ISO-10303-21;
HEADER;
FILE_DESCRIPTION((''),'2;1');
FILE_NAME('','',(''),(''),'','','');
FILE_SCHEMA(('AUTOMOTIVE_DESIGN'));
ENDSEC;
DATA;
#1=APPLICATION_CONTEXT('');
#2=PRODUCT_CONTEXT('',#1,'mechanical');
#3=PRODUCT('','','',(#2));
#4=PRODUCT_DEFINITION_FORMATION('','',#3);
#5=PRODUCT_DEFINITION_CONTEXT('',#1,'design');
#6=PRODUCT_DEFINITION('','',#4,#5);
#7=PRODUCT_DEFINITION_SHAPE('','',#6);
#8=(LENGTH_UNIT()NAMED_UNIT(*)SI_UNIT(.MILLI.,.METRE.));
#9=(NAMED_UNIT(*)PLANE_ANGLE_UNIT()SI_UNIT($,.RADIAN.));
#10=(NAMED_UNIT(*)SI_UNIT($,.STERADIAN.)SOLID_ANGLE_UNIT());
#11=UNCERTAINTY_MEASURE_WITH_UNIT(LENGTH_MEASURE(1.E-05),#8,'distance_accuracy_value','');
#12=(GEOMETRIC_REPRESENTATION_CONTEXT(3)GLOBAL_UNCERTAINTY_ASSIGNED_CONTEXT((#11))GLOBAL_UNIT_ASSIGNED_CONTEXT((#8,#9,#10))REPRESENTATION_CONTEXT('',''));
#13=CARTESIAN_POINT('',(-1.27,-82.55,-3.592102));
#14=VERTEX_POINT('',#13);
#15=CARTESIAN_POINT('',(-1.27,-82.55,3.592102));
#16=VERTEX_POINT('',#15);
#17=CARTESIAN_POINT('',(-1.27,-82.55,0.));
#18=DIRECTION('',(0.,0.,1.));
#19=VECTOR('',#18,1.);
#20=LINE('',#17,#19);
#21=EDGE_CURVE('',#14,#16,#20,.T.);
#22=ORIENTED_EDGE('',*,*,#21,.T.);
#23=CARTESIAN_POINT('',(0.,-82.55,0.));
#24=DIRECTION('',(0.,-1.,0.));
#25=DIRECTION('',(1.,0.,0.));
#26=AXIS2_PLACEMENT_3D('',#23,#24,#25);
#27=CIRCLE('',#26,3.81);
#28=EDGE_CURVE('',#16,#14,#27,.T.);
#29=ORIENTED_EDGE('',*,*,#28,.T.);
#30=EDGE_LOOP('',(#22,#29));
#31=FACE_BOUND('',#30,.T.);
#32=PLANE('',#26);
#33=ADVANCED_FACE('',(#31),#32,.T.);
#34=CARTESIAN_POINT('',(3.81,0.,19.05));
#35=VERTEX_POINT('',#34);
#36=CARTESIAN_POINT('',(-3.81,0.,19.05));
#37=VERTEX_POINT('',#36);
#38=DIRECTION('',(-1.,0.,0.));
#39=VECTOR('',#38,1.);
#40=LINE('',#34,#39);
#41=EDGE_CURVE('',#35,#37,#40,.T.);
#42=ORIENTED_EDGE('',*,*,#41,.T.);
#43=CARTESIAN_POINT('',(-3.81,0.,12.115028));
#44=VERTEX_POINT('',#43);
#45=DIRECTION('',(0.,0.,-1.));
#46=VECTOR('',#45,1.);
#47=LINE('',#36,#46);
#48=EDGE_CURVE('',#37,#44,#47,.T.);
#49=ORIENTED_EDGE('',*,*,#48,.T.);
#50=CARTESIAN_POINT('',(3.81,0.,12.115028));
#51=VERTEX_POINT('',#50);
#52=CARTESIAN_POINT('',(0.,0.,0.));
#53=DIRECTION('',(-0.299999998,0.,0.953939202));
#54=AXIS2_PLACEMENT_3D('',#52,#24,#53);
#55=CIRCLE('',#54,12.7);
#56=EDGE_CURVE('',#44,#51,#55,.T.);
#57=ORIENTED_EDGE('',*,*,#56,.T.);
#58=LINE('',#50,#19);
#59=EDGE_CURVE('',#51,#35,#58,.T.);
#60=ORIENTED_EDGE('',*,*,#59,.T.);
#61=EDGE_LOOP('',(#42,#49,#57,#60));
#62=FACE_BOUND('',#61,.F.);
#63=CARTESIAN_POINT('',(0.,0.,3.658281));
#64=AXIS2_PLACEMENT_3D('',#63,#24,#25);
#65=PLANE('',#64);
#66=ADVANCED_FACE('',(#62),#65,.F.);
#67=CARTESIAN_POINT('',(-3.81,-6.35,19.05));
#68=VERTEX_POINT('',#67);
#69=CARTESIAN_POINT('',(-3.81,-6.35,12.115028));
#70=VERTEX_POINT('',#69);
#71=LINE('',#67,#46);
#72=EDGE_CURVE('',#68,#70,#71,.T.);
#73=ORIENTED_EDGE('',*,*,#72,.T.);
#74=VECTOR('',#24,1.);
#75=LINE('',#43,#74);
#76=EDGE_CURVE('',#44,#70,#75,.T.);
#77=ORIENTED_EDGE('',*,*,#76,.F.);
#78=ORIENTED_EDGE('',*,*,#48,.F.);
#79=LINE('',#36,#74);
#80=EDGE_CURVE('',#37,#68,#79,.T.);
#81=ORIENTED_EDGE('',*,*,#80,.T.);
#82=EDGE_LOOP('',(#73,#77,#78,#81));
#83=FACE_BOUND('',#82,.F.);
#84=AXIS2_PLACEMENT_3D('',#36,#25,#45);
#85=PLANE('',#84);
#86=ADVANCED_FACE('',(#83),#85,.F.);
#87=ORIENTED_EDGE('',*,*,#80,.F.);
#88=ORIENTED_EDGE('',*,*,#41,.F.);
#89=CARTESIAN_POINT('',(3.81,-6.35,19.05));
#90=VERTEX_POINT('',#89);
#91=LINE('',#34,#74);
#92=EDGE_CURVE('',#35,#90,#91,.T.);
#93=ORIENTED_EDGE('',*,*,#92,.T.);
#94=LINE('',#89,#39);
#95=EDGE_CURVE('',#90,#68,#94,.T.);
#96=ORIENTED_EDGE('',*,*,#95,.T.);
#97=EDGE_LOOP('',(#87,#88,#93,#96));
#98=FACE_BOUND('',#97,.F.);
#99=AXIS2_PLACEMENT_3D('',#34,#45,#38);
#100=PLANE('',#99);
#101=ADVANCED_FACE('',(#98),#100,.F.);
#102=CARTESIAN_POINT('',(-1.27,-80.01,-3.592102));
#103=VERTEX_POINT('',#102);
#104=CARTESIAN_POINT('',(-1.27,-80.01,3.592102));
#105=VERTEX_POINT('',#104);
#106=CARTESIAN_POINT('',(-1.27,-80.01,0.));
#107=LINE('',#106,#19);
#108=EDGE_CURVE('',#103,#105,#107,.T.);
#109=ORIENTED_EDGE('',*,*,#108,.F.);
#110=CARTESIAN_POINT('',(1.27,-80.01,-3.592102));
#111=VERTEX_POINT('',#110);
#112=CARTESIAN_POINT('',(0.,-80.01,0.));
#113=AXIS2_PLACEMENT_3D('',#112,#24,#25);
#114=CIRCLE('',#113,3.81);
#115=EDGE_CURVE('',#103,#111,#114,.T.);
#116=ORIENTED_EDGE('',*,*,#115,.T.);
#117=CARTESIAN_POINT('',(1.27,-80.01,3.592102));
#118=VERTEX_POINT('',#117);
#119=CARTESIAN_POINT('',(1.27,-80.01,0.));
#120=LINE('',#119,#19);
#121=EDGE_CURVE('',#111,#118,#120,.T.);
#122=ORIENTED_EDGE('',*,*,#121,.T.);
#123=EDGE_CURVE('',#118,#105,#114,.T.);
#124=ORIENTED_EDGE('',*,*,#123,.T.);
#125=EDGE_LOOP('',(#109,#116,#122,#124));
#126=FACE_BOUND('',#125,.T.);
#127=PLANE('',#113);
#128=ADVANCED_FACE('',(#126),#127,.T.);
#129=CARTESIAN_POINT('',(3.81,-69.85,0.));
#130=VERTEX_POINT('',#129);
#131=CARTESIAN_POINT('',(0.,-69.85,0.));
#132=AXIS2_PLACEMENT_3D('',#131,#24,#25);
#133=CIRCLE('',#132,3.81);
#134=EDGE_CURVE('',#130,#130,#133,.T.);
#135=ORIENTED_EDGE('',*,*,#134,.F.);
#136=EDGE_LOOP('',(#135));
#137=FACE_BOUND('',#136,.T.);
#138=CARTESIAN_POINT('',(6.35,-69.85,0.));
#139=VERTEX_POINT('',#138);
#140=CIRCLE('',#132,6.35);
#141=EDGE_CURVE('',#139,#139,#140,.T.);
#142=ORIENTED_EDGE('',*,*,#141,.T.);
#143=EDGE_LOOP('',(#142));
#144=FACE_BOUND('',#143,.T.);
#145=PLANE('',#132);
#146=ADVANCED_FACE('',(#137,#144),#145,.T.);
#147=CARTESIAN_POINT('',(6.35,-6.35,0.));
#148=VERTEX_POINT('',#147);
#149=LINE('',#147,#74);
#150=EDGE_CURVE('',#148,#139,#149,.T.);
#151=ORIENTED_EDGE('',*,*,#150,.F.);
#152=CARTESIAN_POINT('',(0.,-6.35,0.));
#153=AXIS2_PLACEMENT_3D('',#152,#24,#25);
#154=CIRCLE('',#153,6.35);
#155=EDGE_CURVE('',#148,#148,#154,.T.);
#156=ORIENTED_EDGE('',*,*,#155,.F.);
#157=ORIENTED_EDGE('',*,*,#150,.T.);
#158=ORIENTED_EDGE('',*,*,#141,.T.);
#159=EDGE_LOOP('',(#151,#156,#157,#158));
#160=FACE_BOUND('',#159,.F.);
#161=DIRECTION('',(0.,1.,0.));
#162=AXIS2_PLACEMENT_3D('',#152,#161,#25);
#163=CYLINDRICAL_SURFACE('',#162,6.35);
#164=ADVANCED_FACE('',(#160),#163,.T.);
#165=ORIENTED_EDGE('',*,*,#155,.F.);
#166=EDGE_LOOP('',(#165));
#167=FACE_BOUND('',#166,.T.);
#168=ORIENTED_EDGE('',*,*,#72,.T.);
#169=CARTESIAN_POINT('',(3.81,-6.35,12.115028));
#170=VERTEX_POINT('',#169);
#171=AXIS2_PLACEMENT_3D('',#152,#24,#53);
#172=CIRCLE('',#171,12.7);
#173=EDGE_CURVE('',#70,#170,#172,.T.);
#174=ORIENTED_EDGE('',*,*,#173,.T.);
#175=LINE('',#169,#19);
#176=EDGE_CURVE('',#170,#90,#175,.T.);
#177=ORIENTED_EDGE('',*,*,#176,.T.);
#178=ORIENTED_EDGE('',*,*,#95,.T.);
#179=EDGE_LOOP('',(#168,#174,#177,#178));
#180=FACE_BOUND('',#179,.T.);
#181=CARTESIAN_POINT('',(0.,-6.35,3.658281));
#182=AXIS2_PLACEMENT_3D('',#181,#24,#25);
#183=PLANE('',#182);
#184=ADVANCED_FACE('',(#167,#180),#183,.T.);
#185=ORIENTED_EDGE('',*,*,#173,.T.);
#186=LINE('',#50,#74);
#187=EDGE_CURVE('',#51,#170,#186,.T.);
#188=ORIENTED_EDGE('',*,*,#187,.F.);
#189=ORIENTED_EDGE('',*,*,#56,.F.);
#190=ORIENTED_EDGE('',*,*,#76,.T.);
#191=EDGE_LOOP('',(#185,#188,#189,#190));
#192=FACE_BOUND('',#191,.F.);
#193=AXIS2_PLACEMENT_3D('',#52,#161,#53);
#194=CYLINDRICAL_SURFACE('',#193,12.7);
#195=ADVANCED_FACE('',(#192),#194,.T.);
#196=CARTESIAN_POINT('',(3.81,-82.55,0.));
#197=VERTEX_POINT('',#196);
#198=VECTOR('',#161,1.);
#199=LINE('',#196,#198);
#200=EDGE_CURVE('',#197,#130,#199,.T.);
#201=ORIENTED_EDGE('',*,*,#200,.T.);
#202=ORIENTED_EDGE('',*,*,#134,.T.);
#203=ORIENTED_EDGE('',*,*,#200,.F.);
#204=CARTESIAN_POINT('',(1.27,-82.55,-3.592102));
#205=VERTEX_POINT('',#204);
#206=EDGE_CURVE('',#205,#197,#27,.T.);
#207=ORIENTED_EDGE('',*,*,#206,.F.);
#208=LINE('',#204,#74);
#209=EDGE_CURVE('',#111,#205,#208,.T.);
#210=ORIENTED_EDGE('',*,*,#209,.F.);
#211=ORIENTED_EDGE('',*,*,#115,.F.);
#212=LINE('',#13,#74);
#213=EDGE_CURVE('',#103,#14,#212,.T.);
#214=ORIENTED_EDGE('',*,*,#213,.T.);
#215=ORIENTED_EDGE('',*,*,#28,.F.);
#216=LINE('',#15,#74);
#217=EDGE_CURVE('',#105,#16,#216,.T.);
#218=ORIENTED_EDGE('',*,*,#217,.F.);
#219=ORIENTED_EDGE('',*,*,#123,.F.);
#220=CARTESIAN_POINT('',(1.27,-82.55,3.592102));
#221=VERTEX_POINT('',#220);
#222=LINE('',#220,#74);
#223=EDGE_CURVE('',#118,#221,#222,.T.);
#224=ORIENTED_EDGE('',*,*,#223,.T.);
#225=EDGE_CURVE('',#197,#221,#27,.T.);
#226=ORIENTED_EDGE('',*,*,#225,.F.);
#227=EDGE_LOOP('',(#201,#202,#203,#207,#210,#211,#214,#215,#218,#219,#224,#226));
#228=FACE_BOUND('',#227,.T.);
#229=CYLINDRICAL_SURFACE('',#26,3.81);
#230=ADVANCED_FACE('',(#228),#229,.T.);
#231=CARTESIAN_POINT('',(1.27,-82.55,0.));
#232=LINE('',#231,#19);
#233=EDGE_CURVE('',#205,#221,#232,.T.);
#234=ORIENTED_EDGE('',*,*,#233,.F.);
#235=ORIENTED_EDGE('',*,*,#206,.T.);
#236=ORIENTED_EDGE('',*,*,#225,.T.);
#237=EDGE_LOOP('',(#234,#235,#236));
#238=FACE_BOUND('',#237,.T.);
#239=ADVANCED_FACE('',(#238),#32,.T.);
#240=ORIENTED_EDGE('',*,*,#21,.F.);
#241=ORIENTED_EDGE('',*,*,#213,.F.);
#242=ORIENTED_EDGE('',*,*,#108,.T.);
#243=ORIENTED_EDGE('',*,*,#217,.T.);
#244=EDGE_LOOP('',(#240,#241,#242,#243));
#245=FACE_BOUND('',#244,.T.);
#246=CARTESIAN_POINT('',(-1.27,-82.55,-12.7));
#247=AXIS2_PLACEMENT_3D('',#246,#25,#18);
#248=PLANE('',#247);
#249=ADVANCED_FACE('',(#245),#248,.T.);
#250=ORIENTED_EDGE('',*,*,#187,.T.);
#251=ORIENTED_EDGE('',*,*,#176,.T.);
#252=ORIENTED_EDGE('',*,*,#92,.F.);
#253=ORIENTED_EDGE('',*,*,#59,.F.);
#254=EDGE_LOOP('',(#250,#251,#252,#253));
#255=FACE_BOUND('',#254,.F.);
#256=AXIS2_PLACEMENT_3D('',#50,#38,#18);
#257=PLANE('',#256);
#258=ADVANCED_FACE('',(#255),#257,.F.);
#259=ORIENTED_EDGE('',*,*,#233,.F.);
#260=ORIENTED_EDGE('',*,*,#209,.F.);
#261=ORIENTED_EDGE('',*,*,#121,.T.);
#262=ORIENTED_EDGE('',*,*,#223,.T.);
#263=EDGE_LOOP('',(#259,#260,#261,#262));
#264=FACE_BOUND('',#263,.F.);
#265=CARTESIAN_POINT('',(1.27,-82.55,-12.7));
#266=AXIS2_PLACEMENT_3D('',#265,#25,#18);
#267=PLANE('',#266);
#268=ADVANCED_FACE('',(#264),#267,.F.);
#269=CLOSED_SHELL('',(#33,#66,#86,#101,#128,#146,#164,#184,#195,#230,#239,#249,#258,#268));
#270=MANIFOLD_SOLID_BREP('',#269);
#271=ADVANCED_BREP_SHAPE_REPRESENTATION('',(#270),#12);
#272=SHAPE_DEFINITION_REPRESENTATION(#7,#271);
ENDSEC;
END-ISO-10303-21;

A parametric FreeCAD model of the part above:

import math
import FreeCAD as App
import Part
import Sketcher
from FreeCAD import Vector
Q = App.Units.Quantity

doc = App.newDocument("Part")
body = doc.addObject("PartDesign::Body", "Body")

# Sketch on XZ plane
sketch1 = body.newObject("Sketcher::SketchObject", "Sketch")
sketch1.AttachmentSupport = (doc.getObject("XZ_Plane"), [""])
sketch1.MapMode = "FlatFace"
sketch1.addGeometry([
    Part.LineSegment(Vector(-4, 19, 0), Vector(-4, 12, 0)),
    Part.ArcOfCircle(Part.Circle(Vector(0, 0, 0), Vector(0, 0, 1), 13), math.radians(107), math.radians(433)),
    Part.LineSegment(Vector(4, 12, 0), Vector(4, 19, 0)),
    Part.LineSegment(Vector(4, 19, 0), Vector(-4, 19, 0)),
], False)
sketch1.addConstraint([
    Sketcher.Constraint("Coincident", 0, 2, 1, 1),
    Sketcher.Constraint("Coincident", 1, 2, 2, 1),
    Sketcher.Constraint("Coincident", 2, 2, 3, 1),
    Sketcher.Constraint("Coincident", 3, 2, 0, 1),
    Sketcher.Constraint("Vertical", 0),
    Sketcher.Constraint("Vertical", 2),
    Sketcher.Constraint("Horizontal", 3),
    Sketcher.Constraint("Coincident", 1, 3, -1, 1),
    Sketcher.Constraint("Horizontal", 0, 2, 1, 2),
    Sketcher.Constraint("Radius", 1, Q("0.5 in")),
    Sketcher.Constraint("DistanceX", 3, 2, 3, 1, Q("0.3 in")),
    Sketcher.Constraint("DistanceY", -1, 1, 2, 2, Q("0.75 in")),
])
pad1 = body.newObject("PartDesign::Pad", "Pad")
pad1.Profile = sketch1
pad1.Length = Q("0.25 in")

# Sketch on XZ plane
sketch2 = body.newObject("Sketcher::SketchObject", "Sketch001")
sketch2.AttachmentSupport = (doc.getObject("XZ_Plane"), [""])
sketch2.MapMode = "FlatFace"
sketch2.AttachmentOffset = App.Placement(Vector(0, 0, 0.25 * 25.4), App.Rotation())
sketch2.addGeometry(Part.Circle(Vector(0, 0, 0), Vector(0, 0, 1), 6), False)
sketch2.addConstraint([
    Sketcher.Constraint("Coincident", 0, 3, -1, 1),
    Sketcher.Constraint("Diameter", 0, Q("0.5 in")),
])
pad2 = body.newObject("PartDesign::Pad", "Pad001")
pad2.Profile = sketch2
pad2.Length = Q("3 in")

# Sketch on XZ plane
sketch3 = body.newObject("Sketcher::SketchObject", "Sketch002")
sketch3.AttachmentSupport = (doc.getObject("XZ_Plane"), [""])
sketch3.MapMode = "FlatFace"
sketch3.AttachmentOffset = App.Placement(Vector(0, 0, 3.25 * 25.4), App.Rotation())
sketch3.addGeometry([
    Part.Circle(Vector(0, 0, 0), Vector(0, 0, 1), 6.3),
    Part.Circle(Vector(0, 0, 0), Vector(0, 0, 1), 3.8),
], False)
sketch3.addConstraint([
    Sketcher.Constraint("Coincident", 0, 3, -1, 1),
    Sketcher.Constraint("Coincident", 1, 3, -1, 1),
    Sketcher.Constraint("Diameter", 0, Q("0.5 in")),
    Sketcher.Constraint("Diameter", 1, Q("0.3 in")),
])
pocket1 = body.newObject("PartDesign::Pocket", "Pocket")
pocket1.Profile = sketch3
pocket1.Length = Q("0.5 in")

# Sketch on XZ plane
sketch4 = body.newObject("Sketcher::SketchObject", "Sketch003")
sketch4.AttachmentSupport = (doc.getObject("XZ_Plane"), [""])
sketch4.MapMode = "FlatFace"
sketch4.AttachmentOffset = App.Placement(Vector(0, 0, 3.25 * 25.4), App.Rotation())
sketch4.addGeometry([
    Part.LineSegment(Vector(-1.3, 12.7, 0), Vector(-1.3, -12.7, 0)),
    Part.LineSegment(Vector(-1.3, -12.7, 0), Vector(1.3, -12.7, 0)),
    Part.LineSegment(Vector(1.3, -12.7, 0), Vector(1.3, 12.7, 0)),
    Part.LineSegment(Vector(1.3, 12.7, 0), Vector(-1.3, 12.7, 0)),
], False)
sketch4.addConstraint([
    Sketcher.Constraint("Coincident", 0, 2, 1, 1),
    Sketcher.Constraint("Coincident", 1, 2, 2, 1),
    Sketcher.Constraint("Coincident", 2, 2, 3, 1),
    Sketcher.Constraint("Coincident", 3, 2, 0, 1),
    Sketcher.Constraint("Vertical", 0),
    Sketcher.Constraint("Horizontal", 1),
    Sketcher.Constraint("Vertical", 2),
    Sketcher.Constraint("Horizontal", 3),
    Sketcher.Constraint("Symmetric", 0, 2, 2, 2, -1, 1),
    Sketcher.Constraint("DistanceY", 0, 2, 0, 1, Q("1 in")),
    Sketcher.Constraint("DistanceX", 1, 1, 1, 2, Q("0.1 in")),
])
pocket2 = body.newObject("PartDesign::Pocket", "Pocket001")
pocket2.Profile = sketch4
pocket2.Length = Q("0.1 in")

doc.recompute()
